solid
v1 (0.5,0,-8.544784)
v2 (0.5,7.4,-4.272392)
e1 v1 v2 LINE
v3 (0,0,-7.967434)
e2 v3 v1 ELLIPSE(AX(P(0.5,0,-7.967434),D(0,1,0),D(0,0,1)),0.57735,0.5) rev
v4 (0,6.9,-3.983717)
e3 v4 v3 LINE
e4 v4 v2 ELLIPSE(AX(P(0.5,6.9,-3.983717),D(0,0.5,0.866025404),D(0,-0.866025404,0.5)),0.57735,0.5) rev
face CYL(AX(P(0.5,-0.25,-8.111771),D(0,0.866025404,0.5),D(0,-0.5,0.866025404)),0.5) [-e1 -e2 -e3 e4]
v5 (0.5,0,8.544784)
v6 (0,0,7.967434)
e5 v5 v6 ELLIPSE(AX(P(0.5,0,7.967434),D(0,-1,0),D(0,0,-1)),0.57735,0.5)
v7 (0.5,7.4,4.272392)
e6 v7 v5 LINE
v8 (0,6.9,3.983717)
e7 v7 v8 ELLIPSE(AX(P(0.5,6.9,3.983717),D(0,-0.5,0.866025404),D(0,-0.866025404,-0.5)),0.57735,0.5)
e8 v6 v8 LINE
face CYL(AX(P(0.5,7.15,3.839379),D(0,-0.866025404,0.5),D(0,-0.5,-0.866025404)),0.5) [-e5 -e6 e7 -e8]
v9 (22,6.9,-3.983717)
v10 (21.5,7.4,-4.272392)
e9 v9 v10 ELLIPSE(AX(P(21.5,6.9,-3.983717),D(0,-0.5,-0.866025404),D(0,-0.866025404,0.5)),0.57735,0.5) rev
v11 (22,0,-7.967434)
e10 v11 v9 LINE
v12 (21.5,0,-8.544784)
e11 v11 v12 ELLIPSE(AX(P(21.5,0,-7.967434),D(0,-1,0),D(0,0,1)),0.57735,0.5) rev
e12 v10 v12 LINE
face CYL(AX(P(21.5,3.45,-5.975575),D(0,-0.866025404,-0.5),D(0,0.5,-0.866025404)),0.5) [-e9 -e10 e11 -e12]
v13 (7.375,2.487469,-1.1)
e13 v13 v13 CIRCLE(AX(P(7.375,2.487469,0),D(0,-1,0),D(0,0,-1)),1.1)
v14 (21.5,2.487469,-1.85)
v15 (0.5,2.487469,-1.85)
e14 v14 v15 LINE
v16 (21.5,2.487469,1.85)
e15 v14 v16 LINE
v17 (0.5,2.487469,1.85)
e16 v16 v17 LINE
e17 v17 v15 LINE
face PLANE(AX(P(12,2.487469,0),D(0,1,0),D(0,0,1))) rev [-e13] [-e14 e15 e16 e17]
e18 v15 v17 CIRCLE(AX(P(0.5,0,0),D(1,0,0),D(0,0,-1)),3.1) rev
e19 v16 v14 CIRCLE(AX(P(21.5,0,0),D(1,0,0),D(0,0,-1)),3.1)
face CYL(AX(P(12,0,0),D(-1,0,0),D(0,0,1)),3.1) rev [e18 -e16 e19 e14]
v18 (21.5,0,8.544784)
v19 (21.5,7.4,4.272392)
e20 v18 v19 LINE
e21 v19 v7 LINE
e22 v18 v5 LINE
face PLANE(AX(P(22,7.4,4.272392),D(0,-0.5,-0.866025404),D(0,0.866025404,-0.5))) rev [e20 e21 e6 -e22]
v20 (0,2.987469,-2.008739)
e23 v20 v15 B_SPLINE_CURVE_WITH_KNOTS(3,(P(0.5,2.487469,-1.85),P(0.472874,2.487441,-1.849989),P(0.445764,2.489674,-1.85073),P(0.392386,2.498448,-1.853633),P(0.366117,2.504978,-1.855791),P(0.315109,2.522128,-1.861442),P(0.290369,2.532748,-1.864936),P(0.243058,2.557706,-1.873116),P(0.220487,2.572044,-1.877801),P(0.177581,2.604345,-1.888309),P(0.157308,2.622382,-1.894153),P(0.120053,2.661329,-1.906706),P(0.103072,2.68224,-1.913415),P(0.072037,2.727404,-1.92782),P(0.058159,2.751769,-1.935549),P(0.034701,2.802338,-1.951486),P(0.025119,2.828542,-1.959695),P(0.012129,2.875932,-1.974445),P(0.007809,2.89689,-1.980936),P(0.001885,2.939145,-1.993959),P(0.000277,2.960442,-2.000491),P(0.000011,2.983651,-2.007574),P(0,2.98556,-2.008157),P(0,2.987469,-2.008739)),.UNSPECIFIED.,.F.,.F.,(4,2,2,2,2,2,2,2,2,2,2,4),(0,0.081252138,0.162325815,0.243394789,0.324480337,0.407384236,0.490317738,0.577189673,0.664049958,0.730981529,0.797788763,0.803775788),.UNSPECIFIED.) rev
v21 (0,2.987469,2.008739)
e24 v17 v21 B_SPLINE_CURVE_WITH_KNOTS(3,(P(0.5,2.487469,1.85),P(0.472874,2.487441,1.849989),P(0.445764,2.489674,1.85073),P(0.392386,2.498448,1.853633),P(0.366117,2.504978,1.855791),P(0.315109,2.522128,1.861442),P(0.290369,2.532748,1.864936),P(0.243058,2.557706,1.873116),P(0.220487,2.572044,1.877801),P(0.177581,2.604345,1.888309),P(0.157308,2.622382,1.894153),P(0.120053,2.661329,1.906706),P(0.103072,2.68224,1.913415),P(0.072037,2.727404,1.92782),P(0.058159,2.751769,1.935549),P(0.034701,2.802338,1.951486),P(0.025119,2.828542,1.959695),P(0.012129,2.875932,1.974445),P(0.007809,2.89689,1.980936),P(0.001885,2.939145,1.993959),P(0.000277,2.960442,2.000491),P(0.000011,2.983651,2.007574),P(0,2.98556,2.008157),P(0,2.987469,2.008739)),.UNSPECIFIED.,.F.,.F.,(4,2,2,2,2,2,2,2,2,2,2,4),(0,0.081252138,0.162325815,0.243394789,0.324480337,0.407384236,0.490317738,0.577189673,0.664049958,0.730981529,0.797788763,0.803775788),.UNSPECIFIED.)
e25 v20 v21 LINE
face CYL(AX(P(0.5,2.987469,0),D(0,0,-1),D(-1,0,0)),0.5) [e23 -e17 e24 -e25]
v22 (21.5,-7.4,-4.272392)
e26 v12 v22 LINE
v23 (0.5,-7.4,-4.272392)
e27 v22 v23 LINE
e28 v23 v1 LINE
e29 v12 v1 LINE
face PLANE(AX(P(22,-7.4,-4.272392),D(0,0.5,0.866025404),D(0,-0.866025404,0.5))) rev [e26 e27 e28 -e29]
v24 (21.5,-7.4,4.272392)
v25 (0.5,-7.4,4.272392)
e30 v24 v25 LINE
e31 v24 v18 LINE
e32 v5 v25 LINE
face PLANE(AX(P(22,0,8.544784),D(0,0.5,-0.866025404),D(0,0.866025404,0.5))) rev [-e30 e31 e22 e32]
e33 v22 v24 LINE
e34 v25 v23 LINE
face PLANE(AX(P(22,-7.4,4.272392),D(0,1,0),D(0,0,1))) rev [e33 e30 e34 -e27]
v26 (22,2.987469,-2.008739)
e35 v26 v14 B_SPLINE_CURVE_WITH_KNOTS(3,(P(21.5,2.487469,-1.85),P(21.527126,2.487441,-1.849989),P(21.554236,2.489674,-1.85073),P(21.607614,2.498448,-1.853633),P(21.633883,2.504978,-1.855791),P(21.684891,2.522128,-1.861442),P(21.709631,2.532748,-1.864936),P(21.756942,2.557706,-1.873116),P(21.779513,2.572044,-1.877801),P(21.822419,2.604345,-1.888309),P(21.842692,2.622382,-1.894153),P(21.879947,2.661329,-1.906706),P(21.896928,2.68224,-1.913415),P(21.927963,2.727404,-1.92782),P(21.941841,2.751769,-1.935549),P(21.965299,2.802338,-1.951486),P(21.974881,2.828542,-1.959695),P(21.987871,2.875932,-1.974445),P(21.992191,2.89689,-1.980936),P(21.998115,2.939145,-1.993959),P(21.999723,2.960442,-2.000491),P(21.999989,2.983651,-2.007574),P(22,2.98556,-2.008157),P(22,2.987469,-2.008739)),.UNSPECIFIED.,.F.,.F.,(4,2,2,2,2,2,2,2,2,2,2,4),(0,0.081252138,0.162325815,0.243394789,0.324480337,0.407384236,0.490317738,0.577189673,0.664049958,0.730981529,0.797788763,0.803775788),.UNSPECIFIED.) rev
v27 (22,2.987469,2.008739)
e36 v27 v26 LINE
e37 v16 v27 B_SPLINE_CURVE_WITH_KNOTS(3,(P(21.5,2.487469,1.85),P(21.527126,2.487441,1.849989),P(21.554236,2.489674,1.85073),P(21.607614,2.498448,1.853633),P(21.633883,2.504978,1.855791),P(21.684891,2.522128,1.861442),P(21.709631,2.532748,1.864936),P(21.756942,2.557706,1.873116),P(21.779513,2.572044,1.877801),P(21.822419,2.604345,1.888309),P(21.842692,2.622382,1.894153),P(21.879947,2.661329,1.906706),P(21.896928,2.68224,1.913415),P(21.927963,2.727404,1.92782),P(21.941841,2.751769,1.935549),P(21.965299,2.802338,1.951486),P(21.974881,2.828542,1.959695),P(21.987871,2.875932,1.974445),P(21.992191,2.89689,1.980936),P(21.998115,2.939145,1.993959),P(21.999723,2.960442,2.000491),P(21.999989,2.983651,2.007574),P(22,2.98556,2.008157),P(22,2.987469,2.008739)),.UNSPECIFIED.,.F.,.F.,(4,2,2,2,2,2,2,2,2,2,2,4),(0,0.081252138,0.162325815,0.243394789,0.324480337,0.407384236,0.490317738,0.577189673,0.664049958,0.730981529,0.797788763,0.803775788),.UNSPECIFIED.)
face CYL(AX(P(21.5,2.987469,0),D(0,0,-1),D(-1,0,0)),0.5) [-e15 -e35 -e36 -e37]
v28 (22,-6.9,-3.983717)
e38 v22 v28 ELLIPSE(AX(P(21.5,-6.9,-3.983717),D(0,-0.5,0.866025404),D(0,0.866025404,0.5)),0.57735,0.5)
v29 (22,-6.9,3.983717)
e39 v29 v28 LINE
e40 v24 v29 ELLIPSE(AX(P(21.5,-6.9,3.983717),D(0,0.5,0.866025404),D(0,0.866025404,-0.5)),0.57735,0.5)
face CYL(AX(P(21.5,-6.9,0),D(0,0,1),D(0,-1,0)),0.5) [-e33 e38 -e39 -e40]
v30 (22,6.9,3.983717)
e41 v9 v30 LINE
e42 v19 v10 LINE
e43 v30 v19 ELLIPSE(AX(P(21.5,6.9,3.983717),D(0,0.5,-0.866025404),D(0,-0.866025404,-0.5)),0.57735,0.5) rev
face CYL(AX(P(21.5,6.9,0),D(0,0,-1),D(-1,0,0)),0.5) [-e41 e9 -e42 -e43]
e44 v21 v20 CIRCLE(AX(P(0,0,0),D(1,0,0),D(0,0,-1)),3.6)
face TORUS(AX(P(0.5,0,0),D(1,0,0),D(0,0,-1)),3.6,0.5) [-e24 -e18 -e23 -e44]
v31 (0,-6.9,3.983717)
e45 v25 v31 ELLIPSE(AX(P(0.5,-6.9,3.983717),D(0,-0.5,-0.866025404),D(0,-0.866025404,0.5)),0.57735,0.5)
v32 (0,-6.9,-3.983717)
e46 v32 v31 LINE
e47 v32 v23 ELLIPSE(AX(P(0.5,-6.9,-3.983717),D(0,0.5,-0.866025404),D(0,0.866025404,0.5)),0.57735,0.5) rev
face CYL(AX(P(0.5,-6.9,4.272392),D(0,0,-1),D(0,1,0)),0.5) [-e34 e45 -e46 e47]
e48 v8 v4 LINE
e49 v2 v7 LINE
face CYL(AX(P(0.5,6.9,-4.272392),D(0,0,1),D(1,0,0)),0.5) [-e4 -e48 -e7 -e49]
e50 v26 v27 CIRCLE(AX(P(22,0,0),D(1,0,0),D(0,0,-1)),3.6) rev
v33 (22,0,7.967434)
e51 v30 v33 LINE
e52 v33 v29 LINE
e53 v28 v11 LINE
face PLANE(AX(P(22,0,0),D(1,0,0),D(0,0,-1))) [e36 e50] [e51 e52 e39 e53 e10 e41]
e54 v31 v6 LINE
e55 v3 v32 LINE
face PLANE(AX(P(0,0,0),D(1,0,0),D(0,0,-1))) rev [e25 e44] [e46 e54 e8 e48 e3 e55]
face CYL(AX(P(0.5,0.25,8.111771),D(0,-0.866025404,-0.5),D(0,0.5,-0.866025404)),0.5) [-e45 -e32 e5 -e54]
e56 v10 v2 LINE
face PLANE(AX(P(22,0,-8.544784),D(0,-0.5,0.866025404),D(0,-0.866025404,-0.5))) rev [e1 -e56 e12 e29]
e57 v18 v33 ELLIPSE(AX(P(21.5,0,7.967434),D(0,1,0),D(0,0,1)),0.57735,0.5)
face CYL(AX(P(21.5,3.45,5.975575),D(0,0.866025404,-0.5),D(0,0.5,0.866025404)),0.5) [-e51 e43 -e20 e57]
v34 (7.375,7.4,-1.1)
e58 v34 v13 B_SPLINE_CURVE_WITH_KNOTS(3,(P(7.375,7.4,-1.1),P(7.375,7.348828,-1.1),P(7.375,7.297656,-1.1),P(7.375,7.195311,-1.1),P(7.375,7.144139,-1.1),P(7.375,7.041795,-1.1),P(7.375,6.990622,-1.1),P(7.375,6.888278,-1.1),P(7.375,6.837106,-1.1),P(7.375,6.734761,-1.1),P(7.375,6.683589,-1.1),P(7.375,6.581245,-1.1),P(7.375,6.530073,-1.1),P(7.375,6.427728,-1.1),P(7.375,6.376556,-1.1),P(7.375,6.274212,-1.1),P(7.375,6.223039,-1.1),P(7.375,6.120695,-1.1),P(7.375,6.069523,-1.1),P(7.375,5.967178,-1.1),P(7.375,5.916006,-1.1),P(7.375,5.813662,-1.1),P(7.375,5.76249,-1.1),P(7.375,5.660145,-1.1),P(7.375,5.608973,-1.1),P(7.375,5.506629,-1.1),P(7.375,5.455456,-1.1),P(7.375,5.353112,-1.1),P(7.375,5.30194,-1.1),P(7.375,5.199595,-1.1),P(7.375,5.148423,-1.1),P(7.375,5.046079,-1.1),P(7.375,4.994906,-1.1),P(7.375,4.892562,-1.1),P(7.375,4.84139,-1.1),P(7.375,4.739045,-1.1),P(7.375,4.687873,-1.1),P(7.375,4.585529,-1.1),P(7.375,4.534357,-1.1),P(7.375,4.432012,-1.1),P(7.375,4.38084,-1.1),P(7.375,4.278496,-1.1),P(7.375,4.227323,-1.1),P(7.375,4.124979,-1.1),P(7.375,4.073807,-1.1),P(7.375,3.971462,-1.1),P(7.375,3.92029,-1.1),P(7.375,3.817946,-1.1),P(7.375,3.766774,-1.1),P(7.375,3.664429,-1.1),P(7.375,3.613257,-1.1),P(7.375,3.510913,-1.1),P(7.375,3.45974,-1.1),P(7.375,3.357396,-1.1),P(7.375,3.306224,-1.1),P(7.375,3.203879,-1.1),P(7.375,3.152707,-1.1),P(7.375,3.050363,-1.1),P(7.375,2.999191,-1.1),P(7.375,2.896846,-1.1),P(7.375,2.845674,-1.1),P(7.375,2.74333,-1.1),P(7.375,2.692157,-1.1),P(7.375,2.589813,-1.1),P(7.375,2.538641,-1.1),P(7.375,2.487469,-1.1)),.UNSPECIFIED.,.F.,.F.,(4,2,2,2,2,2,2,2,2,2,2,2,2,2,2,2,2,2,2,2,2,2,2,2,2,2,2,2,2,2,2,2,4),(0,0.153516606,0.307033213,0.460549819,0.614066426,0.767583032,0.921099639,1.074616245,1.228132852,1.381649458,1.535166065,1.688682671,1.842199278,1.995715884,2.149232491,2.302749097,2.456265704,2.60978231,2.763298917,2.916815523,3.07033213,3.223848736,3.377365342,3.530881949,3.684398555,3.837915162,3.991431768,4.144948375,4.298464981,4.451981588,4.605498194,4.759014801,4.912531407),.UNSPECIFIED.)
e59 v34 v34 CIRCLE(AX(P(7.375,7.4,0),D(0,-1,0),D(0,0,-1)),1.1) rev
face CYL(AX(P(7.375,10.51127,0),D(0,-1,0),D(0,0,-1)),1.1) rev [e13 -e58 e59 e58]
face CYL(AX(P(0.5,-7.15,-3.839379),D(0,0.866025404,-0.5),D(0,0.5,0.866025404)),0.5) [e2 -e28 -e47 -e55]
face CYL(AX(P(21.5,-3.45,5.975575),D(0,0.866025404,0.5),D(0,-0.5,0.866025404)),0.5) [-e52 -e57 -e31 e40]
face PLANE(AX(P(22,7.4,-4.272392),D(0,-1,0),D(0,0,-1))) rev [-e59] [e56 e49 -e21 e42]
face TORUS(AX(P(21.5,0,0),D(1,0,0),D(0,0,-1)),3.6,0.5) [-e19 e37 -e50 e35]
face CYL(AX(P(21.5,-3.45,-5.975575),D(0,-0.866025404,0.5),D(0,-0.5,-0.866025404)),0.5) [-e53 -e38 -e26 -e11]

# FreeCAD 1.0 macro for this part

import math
import FreeCAD as App
import Part
import Sketcher
Q = App.Units.Quantity


def edges_at(feature, points):
    """Names of the edges that pass closest to the given points."""
    edges = feature.Shape.Edges
    near = lambda p: min(range(len(edges)), key=lambda i: edges[i].distToShape(Part.Vertex(*p))[0])
    return sorted({f"Edge{near(p) + 1}" for p in points})


def add_polygon(sketch, points):
    """Adds a closed chain of lines whose ends are joined by coincident constraints."""
    first, n = sketch.GeometryCount, len(points)
    for a, b in zip(points, points[1:] + points[:1]):
        sketch.addGeometry(Part.LineSegment(App.Vector(*a, 0), App.Vector(*b, 0)), False)
    for i in range(n):
        sketch.addConstraint(Sketcher.Constraint("Coincident", first + i, 2, first + (i + 1) % n, 1))

doc = App.newDocument("Part")
params = doc.addObject("Spreadsheet::Sheet", "Params")
for row, (alias, value) in enumerate([
    ("sketch1_radius", "3.1 mm"),
    ("sketch1_height", "4.2 mm"),
    ("sketch1_height2", "3.7 mm"),
    ("pad1_length", "12 mm"),
    ("sketch2_radius", "3.1 mm"),
    ("sketch2_height", "3.7 mm"),
    ("pad2_length", "10 mm"),
    ("pad2_length2", "12 mm"),
    ("sketch3_diameter", "2.2 mm"),
    ("pocket1_length", "4.912531 mm"),
    ("fillet_radius", "0.5 mm"),
], start=1):
    params.set(f"A{row}", alias)
    params.set(f"B{row}", "=" + value)
    params.setAlias(f"B{row}", alias)

body = doc.addObject("PartDesign::Body", "Body")

# Sketch on YZ plane
sketch1 = body.newObject("Sketcher::SketchObject", "Sketch")
sketch1.AttachmentSupport = (doc.getObject("YZ_Plane"), [""])
sketch1.MapMode = "FlatFace"
sketch1.addGeometry([
    Part.LineSegment(App.Vector(4, -2.1, 0), App.Vector(4, 2.1, 0)),
    Part.ArcOfCircle(Part.Circle(App.Vector(0, 0, 0), App.Vector(0, 0, 1), 4.5), math.radians(28), math.radians(332)),
    Part.LineSegment(App.Vector(2.5, 1.9, 0), App.Vector(2.5, -1.9, 0)),
    Part.ArcOfCircle(Part.Circle(App.Vector(0, 0, 0), App.Vector(0, 0, 1), 3.1), math.radians(37), math.radians(323)),
], False)
sketch1.addConstraint([
    Sketcher.Constraint("Coincident", 0, 1, 1, 2),
    Sketcher.Constraint("Coincident", 1, 1, 0, 2),
    Sketcher.Constraint("Coincident", 2, 1, 3, 1),
    Sketcher.Constraint("Coincident", 3, 2, 2, 2),
    Sketcher.Constraint("Vertical", 0),
    Sketcher.Constraint("Vertical", 2),
    Sketcher.Constraint("Coincident", 1, 3, -1, 1),
    Sketcher.Constraint("Coincident", 3, 3, -1, 1),
    Sketcher.Constraint("Radius", 3, 3.1),
    Sketcher.Constraint("DistanceY", 0, 1, 0, 2, 4.2),
    Sketcher.Constraint("DistanceY", 2, 2, 2, 1, 3.7),
    Sketcher.Constraint("DistanceX", 2, 1, 1, 1, 1.5),
])
sketch1.setExpression("Constraints[8]", "Params.sketch1_radius")
sketch1.setExpression("Constraints[9]", "Params.sketch1_height")
sketch1.setExpression("Constraints[10]", "Params.sketch1_height2")
pad1 = body.newObject("PartDesign::Pad", "Pad")
pad1.Profile = sketch1
pad1.setExpression("Length", "Params.pad1_length")

# Sketch on YZ plane
sketch2 = body.newObject("Sketcher::SketchObject", "Sketch001")
sketch2.AttachmentSupport = (doc.getObject("YZ_Plane"), [""])
sketch2.MapMode = "FlatFace"
sketch2.AttachmentOffset = App.Placement(App.Vector(0, 0, 12), App.Rotation())
add_polygon(sketch2, [(-7.4, 4.3), (-7.4, -4.3), (0, -8.5), (7.4, -4.3), (7.4, 4.3), (0, 8.5)])  # lines 0-5
sketch2.addGeometry(Part.ArcOfCircle(Part.Circle(App.Vector(0, 0, 0), App.Vector(0, 0, 1), 3.1), math.radians(37), math.radians(323)), False)  # 6
sketch2.addGeometry(Part.LineSegment(App.Vector(2.5, 1.9, 0), App.Vector(2.5, -1.9, 0)), False)  # 7
sketch2.addConstraint([
    Sketcher.Constraint("Coincident", 6, 1, 7, 1),
    Sketcher.Constraint("Coincident", 7, 2, 6, 2),
    Sketcher.Constraint("Vertical", 0),
    Sketcher.Constraint("Vertical", 3),
    Sketcher.Constraint("Vertical", 7),
    Sketcher.Constraint("Coincident", 6, 3, -1, 1),
    Sketcher.Constraint("Symmetric", 0, 2, 3, 2, -1, 1),
    Sketcher.Constraint("Symmetric", 1, 2, 4, 2, -1, 1),
    Sketcher.Constraint("PointOnObject", 1, 2, -2),
    Sketcher.Constraint("Parallel", 2, 5),
    Sketcher.Constraint("Horizontal", 0, 2, 2, 2),
    Sketcher.Constraint("Radius", 6, 3.1),
    Sketcher.Constraint("Angle", 1, Q("-30 deg")),
    Sketcher.Constraint("DistanceY", 7, 2, 7, 1, 3.7),
    Sketcher.Constraint("DistanceX", 0, 2, -1, 1, 7.4),
    Sketcher.Constraint("DistanceY", 0, 2, 0, 1, 8.544784),
])
sketch2.setExpression("Constraints[17]", "Params.sketch2_radius")
sketch2.setExpression("Constraints[19]", "Params.sketch2_height")
pad2 = body.newObject("PartDesign::Pad", "Pad001")
pad2.Profile = sketch2
pad2.Type = "TwoLengths"
pad2.setExpression("Length", "Params.pad2_length")
pad2.setExpression("Length2", "Params.pad2_length2")

# Sketch on XZ plane
sketch3 = body.newObject("Sketcher::SketchObject", "Sketch002")
sketch3.AttachmentSupport = (doc.getObject("XZ_Plane"), [""])
sketch3.MapMode = "FlatFace"
sketch3.AttachmentOffset = App.Placement(App.Vector(0, 0, -2.487469), App.Rotation())
sketch3.addGeometry(Part.Circle(App.Vector(7.4, 0, 0), App.Vector(0, 0, 1), 1.1), False)
sketch3.addConstraint([
    Sketcher.Constraint("PointOnObject", 0, 3, -1),
    Sketcher.Constraint("Diameter", 0, 2.2),
    Sketcher.Constraint("DistanceX", -1, 1, 0, 3, 7.375),
])
sketch3.setExpression("Constraints[1]", "Params.sketch3_diameter")
pocket1 = body.newObject("PartDesign::Pocket", "Pocket")
pocket1.Profile = sketch3
pocket1.setExpression("Length", "Params.pocket1_length")
doc.recompute()

fillet = body.newObject("PartDesign::Fillet", "Fillet")
fillet.Base = (pocket1, edges_at(pocket1, [
    (0, 2.487, 0),
    (22, -3.7, 6.409),
    (22, -7.4, 0),
    (22, -3.7, -6.409),
    (22, 3.7, -6.409),
    (22, 7.4, 0),
    (22, 3.7, 6.409),
    (0, -3.7, 6.409),
    (0, -7.4, 0),
    (0, -3.7, -6.409),
    (0, 3.7, -6.409),
    (0, 7.4, 0),
    (0, 3.7, 6.409),
    (22, -3.1, 0),
    (22, 2.487, 0),
    (0, -3.1, 0),
]))
fillet.setExpression("Radius", "Params.fillet_radius")

doc.recompute()
